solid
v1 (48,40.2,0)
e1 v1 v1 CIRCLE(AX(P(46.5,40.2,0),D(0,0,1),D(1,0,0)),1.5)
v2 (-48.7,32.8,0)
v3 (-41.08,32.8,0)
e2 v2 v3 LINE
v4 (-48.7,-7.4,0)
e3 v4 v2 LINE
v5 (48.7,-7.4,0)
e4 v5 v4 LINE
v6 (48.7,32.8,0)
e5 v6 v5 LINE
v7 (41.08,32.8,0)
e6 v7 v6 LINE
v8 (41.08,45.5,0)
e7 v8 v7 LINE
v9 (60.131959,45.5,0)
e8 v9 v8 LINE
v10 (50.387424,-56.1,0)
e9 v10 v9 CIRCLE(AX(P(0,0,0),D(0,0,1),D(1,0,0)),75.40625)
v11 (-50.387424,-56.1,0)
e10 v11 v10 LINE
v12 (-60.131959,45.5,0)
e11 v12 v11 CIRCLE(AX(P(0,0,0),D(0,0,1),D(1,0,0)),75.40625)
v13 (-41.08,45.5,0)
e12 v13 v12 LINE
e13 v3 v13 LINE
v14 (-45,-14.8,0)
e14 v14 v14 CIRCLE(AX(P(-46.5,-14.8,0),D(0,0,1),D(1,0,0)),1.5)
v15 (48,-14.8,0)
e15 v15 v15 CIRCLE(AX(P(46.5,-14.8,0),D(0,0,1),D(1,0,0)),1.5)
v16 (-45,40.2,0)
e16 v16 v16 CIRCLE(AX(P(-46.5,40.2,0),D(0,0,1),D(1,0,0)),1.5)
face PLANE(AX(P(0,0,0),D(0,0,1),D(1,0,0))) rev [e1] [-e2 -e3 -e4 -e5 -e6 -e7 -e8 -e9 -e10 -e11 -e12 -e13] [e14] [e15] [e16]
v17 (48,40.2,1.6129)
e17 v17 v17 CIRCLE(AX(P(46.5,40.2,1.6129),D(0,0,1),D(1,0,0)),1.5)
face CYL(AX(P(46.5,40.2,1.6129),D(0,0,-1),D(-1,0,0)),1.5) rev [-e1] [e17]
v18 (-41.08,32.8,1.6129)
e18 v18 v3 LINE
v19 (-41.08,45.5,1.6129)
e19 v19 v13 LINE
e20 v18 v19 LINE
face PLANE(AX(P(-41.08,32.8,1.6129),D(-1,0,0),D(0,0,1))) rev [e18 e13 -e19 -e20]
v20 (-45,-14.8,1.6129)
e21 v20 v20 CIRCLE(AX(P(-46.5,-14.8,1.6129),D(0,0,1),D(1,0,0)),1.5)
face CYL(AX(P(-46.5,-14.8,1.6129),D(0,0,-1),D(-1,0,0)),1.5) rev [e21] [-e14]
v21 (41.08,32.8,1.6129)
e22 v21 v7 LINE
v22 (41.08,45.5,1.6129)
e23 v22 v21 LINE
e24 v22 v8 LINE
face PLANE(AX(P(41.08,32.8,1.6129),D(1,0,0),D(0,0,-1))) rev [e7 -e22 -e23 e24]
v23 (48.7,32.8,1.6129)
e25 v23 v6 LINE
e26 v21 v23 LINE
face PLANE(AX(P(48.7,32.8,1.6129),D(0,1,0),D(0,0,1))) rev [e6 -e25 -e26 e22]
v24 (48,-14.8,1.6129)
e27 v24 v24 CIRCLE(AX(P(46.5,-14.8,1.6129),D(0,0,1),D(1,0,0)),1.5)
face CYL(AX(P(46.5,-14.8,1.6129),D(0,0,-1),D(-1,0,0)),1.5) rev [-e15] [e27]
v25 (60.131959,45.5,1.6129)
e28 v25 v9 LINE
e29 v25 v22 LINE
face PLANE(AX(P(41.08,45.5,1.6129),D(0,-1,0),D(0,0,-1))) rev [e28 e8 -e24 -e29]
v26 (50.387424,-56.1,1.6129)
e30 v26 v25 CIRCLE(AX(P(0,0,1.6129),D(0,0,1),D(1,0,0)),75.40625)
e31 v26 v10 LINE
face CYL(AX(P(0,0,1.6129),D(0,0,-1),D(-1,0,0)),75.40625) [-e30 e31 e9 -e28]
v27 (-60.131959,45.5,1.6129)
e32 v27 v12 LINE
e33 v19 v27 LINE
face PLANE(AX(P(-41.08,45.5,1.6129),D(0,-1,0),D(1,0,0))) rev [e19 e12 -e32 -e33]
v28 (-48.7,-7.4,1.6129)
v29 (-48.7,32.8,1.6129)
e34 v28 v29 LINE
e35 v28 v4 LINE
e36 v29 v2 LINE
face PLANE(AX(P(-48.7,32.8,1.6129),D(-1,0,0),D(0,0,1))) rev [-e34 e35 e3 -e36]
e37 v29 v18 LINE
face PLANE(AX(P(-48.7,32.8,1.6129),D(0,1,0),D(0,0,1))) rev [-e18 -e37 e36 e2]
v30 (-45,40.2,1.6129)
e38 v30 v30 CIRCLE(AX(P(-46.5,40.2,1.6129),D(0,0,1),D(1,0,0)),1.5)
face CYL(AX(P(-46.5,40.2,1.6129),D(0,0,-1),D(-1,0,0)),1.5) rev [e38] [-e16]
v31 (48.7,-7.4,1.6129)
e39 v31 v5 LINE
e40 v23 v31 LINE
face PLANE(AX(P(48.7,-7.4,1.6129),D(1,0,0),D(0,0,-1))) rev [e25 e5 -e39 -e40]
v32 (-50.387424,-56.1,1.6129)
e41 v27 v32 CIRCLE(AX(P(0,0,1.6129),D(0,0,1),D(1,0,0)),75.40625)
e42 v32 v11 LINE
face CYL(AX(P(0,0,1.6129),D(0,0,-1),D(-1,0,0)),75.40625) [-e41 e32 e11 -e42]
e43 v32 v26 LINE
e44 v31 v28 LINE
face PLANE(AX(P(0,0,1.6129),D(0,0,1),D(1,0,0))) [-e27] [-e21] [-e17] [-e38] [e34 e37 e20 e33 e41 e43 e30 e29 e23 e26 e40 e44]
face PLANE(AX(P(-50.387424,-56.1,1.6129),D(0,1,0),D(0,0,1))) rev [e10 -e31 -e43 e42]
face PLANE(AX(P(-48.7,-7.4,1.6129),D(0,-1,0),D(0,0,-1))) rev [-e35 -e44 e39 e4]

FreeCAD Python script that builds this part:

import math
import FreeCAD as App
import Part
import Sketcher

V = App.Vector
Q = App.Units.Quantity

doc = App.newDocument("Part")
body = doc.addObject("PartDesign::Body", "Body")

# Sketch on XY plane
sketch1 = body.newObject("Sketcher::SketchObject", "Sketch")
sketch1.AttachmentSupport = (doc.getObject("XY_Plane"), [""])
sketch1.MapMode = "FlatFace"
sketch1.addGeometry([
    Part.LineSegment(V(41.08, 32.8, 0), V(48.7, 32.8, 0)),  # 0
    Part.LineSegment(V(48.7, 32.8, 0), V(48.7, -7.4, 0)),  # 1
    Part.LineSegment(V(48.7, -7.4, 0), V(-48.7, -7.4, 0)),  # 2
    Part.LineSegment(V(-48.7, -7.4, 0), V(-48.7, 32.8, 0)),  # 3
    Part.LineSegment(V(-48.7, 32.8, 0), V(-41.08, 32.8, 0)),  # 4
    Part.LineSegment(V(-41.08, 32.8, 0), V(-41.08, 45.5, 0)),  # 5
    Part.LineSegment(V(-41.08, 45.5, 0), V(-60.131959, 45.5, 0)),  # 6
    Part.ArcOfCircle(Part.Circle(V(0, 0, 0), V(0, 0, 1), 75.40625), math.radians(142.88633), math.radians(228.07072)),  # 7
    Part.LineSegment(V(-50.387424, -56.1, 0), V(50.387424, -56.1, 0)),  # 8
    Part.ArcOfCircle(Part.Circle(V(0, 0, 0), V(0, 0, 1), 75.40625), math.radians(-48.07072), math.radians(37.11367)),  # 9
    Part.LineSegment(V(60.131959, 45.5, 0), V(41.08, 45.5, 0)),  # 10
    Part.LineSegment(V(41.08, 45.5, 0), V(41.08, 32.8, 0)),  # 11
    Part.Circle(V(46.5, -14.8, 0), V(0, 0, 1), 1.5),  # 12
    Part.Circle(V(-46.5, -14.8, 0), V(0, 0, 1), 1.5),  # 13
    Part.Circle(V(46.5, 40.2, 0), V(0, 0, 1), 1.5),  # 14
    Part.Circle(V(-46.5, 40.2, 0), V(0, 0, 1), 1.5),  # 15
], False)
sketch1.addConstraint([
    Sketcher.Constraint("Coincident", 0, 2, 1, 1),
    Sketcher.Constraint("Coincident", 1, 2, 2, 1),
    Sketcher.Constraint("Coincident", 2, 2, 3, 1),
    Sketcher.Constraint("Coincident", 3, 2, 4, 1),
    Sketcher.Constraint("Coincident", 4, 2, 5, 1),
    Sketcher.Constraint("Coincident", 5, 2, 6, 1),
    Sketcher.Constraint("Coincident", 6, 2, 7, 1),
    Sketcher.Constraint("Coincident", 7, 2, 8, 1),
    Sketcher.Constraint("Coincident", 8, 2, 9, 1),
    Sketcher.Constraint("Coincident", 9, 2, 10, 1),
    Sketcher.Constraint("Coincident", 10, 2, 11, 1),
    Sketcher.Constraint("Coincident", 11, 2, 0, 1),
    Sketcher.Constraint("Horizontal", 0),
    Sketcher.Constraint("Vertical", 1),
    Sketcher.Constraint("Horizontal", 2),
    Sketcher.Constraint("Vertical", 3),
    Sketcher.Constraint("Horizontal", 4),
    Sketcher.Constraint("Vertical", 5),
    Sketcher.Constraint("Horizontal", 6),
    Sketcher.Constraint("Horizontal", 8),
    Sketcher.Constraint("Horizontal", 10),
    Sketcher.Constraint("Vertical", 11),
    Sketcher.Constraint("Coincident", 7, 3, -1, 1),
    Sketcher.Constraint("Coincident", 9, 3, -1, 1),
    Sketcher.Constraint("Equal", 7, 9),
    Sketcher.Constraint("Equal", 12, 13),
    Sketcher.Constraint("Equal", 13, 14),
    Sketcher.Constraint("Equal", 14, 15),
    Sketcher.Constraint("Symmetric", 12, 3, 13, 3, -2),
    Sketcher.Constraint("Symmetric", 14, 3, 15, 3, -2),
    Sketcher.Constraint("Symmetric", 0, 2, 3, 2, -2),
    Sketcher.Constraint("Symmetric", 5, 2, 10, 2, -2),
    Sketcher.Constraint("Vertical", 12, 3, 14, 3),
    Sketcher.Constraint("Diameter", 12, Q("3 mm")),
    Sketcher.Constraint("DistanceX", 2, 2, 2, 1, Q("97.4 mm")),
    Sketcher.Constraint("DistanceY", 1, 2, 1, 1, Q("40.2 mm")),
    Sketcher.Constraint("DistanceY", 5, 1, 5, 2, Q("12.7 mm")),
    Sketcher.Constraint("DistanceX", 13, 3, 12, 3, Q("93 mm")),
    Sketcher.Constraint("DistanceY", 12, 3, 14, 3, Q("55 mm")),
    Sketcher.Constraint("DistanceX", 0, 1, 0, 2, Q("7.62 mm")),
    Sketcher.Constraint("DistanceY", 12, 3, -1, 1, Q("14.8 mm")),
    Sketcher.Constraint("DistanceY", -1, 1, 0, 2, Q("32.8 mm")),
    Sketcher.Constraint("DistanceY", 7, 2, -1, 1, Q("56.1 mm")),
    Sketcher.Constraint("Radius", 7, Q("75.40625 mm")),
])
pad1 = body.newObject("PartDesign::Pad", "Pad")
pad1.Profile = sketch1
pad1.Length = 1.6129

doc.recompute()
